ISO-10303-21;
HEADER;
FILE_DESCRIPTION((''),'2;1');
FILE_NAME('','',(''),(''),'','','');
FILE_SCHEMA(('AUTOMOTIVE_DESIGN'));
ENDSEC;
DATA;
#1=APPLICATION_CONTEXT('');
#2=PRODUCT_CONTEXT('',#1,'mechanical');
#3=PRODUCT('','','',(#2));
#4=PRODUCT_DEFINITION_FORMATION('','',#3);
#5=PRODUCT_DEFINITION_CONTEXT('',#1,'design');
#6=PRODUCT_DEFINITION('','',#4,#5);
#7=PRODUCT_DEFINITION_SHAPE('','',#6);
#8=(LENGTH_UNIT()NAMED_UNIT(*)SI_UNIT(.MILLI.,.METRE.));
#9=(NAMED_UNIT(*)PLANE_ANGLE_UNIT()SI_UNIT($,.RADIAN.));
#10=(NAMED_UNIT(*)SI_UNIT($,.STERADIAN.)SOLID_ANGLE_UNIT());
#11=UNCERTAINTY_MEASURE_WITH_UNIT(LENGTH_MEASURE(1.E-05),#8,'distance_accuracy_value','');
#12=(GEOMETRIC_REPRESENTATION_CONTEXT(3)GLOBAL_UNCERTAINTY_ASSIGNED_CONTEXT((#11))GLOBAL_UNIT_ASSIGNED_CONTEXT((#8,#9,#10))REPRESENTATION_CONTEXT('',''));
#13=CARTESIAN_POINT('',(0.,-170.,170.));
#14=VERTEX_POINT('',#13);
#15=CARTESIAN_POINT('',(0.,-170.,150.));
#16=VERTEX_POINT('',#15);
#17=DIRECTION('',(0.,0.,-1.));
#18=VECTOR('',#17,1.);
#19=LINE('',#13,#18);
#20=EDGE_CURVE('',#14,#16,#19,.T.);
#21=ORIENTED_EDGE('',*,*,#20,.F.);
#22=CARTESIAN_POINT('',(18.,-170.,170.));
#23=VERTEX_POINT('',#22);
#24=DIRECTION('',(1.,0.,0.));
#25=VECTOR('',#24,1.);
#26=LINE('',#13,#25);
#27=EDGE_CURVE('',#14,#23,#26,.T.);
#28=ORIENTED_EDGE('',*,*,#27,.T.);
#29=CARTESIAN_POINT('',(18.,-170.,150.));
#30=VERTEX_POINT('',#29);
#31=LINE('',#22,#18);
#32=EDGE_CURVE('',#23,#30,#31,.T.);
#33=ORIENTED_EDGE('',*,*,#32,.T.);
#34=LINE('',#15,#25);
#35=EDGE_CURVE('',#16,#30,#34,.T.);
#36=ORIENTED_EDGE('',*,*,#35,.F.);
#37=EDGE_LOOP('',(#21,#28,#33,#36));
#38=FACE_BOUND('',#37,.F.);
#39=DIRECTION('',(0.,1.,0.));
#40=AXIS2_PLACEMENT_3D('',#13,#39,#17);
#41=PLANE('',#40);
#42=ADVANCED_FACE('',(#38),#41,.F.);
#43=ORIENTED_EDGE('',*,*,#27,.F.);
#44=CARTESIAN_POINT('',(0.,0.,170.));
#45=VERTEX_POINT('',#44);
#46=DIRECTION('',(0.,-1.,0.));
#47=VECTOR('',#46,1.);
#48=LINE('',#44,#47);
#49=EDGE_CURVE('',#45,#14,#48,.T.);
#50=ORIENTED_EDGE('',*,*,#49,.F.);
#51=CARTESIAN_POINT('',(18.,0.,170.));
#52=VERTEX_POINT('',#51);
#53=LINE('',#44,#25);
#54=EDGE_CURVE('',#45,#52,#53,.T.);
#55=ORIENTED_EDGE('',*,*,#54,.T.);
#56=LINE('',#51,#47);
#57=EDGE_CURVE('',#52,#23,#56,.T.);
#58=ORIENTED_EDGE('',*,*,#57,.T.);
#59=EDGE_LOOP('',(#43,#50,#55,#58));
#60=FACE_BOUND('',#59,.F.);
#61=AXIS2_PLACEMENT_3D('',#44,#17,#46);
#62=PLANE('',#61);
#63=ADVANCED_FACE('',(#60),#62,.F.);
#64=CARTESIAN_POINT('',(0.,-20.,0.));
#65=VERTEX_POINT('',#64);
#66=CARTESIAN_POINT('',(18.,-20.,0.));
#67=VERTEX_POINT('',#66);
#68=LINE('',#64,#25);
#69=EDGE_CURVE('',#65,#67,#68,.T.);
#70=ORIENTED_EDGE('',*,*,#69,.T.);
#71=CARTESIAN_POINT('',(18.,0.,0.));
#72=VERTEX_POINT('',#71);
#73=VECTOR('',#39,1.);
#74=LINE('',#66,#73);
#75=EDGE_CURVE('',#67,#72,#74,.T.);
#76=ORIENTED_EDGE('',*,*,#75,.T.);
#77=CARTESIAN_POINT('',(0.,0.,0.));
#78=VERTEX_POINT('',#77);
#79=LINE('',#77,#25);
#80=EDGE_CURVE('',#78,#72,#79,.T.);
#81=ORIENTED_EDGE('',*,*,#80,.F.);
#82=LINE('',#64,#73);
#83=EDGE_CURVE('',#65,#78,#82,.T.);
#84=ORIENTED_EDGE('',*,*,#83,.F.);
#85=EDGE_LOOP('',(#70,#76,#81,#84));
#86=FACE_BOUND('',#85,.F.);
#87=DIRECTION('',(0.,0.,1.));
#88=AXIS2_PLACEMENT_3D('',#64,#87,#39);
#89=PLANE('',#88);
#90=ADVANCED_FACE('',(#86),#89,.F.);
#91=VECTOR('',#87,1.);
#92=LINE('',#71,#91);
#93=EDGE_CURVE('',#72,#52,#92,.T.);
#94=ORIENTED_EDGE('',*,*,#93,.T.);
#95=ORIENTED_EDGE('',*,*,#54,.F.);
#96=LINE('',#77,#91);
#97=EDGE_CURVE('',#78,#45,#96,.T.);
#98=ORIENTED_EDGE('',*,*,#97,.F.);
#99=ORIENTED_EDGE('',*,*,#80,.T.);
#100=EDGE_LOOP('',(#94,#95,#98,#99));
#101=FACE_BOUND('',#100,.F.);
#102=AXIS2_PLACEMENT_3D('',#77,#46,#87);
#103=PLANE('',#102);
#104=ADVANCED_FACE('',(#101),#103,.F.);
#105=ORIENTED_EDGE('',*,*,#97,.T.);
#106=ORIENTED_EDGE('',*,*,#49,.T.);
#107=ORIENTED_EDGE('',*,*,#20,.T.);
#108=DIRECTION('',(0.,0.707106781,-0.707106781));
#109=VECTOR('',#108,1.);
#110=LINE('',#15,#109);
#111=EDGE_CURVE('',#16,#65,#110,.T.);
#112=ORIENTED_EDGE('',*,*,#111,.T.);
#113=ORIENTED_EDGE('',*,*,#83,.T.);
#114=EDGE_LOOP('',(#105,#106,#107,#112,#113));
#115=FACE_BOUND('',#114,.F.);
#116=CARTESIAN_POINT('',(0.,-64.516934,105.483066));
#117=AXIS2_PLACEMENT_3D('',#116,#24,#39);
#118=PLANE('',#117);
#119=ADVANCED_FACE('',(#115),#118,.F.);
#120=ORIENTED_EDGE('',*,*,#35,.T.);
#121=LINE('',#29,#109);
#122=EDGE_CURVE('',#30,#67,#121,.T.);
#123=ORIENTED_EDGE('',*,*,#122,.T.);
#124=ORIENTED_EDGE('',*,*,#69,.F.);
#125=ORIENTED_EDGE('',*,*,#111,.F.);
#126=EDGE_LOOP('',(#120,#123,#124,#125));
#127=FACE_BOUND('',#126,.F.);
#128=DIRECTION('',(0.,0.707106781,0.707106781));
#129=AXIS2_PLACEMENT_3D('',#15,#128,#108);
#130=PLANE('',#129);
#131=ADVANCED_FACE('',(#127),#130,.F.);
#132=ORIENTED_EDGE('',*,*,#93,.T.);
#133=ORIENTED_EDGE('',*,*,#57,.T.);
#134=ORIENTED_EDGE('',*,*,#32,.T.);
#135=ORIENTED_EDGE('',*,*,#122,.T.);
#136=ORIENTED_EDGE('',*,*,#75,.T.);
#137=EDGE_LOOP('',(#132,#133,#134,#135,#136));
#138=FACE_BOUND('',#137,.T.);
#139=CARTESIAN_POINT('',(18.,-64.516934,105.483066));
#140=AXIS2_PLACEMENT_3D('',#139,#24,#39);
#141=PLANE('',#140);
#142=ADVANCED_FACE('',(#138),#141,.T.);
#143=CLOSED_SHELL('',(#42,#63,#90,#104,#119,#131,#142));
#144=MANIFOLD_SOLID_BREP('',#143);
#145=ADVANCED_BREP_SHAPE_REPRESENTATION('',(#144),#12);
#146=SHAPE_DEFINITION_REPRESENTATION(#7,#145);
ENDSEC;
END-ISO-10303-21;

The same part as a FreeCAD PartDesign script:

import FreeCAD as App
import Part
import Sketcher
from FreeCAD import Vector
Q = App.Units.Quantity

doc = App.newDocument("Part")
body = doc.addObject("PartDesign::Body", "Body")

# Sketch on YZ plane
sketch1 = body.newObject("Sketcher::SketchObject", "Sketch")
sketch1.AttachmentSupport = (doc.getObject("YZ_Plane"), [""])
sketch1.MapMode = "FlatFace"
sketch1.addGeometry([
    Part.LineSegment(Vector(0, 170, 0), Vector(-170, 170, 0)),  # 0
    Part.LineSegment(Vector(-170, 170, 0), Vector(-170, 150, 0)),  # 1
    Part.LineSegment(Vector(-170, 150, 0), Vector(-20, 0, 0)),  # 2
    Part.LineSegment(Vector(-20, 0, 0), Vector(0, 0, 0)),  # 3
    Part.LineSegment(Vector(0, 0, 0), Vector(0, 170, 0)),  # 4
], False)
sketch1.addConstraint([
    Sketcher.Constraint("Coincident", 0, 2, 1, 1),
    Sketcher.Constraint("Coincident", 1, 2, 2, 1),
    Sketcher.Constraint("Coincident", 2, 2, 3, 1),
    Sketcher.Constraint("Coincident", 3, 2, 4, 1),
    Sketcher.Constraint("Coincident", 4, 2, 0, 1),
    Sketcher.Constraint("Horizontal", 0),
    Sketcher.Constraint("Vertical", 1),
    Sketcher.Constraint("Horizontal", 3),
    Sketcher.Constraint("Vertical", 4),
    Sketcher.Constraint("Coincident", 3, 2, -1, 1),
    Sketcher.Constraint("Equal", 3, 1),
    Sketcher.Constraint("Equal", 0, 4),
    Sketcher.Constraint("DistanceX", 0, 2, 0, 1, Q("170 mm")),
    Sketcher.Constraint("DistanceX", 3, 1, 3, 2, Q("20 mm")),
])
pad1 = body.newObject("PartDesign::Pad", "Pad")
pad1.Profile = sketch1
pad1.Length = 18

doc.recompute()
